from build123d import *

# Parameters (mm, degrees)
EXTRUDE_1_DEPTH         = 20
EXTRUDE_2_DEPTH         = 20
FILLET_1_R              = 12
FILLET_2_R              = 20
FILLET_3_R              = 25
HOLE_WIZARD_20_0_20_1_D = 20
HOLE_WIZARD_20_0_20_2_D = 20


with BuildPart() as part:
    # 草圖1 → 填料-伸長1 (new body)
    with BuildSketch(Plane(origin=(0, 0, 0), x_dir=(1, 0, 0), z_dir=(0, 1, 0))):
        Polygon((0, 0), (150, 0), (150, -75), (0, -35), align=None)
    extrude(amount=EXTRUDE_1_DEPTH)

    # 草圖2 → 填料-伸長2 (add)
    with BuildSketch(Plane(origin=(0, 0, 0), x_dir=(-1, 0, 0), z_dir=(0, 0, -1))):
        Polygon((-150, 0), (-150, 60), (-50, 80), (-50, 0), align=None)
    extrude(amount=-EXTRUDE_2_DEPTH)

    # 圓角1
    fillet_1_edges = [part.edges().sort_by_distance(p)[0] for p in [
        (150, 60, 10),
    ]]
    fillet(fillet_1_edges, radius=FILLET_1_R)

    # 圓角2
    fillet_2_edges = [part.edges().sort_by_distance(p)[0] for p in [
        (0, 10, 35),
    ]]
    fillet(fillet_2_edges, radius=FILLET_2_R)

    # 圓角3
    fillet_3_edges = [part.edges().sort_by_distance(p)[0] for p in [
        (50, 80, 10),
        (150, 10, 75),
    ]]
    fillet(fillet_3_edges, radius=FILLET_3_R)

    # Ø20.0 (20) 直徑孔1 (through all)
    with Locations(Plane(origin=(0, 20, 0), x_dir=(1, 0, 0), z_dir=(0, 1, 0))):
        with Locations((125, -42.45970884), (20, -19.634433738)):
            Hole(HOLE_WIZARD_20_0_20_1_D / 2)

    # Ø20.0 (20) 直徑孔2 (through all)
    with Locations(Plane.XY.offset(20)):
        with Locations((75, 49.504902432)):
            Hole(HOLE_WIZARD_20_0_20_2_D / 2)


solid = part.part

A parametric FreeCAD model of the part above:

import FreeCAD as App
import Part
import Sketcher


def edges_at(feature, points):
    """Names of the edges that pass closest to the given points."""
    edges = feature.Shape.Edges
    near = lambda p: min(range(len(edges)), key=lambda i: edges[i].distToShape(Part.Vertex(*p))[0])
    return sorted({f"Edge{near(p) + 1}" for p in points})

doc = App.newDocument("Part")
body = doc.addObject("PartDesign::Body", "Body")

sketch1 = body.newObject("Sketcher::SketchObject", "Sketch")
sketch1.AttachmentSupport = (doc.getObject("XZ_Plane"), [""])
sketch1.MapMode = "FlatFace"
sketch1.addGeometry(Part.LineSegment(App.Vector(150, 0, 0), App.Vector(0, 0, 0)), False)
sketch1.addGeometry(Part.LineSegment(App.Vector(0, 0, 0), App.Vector(0, 35, 0)), False)
sketch1.addGeometry(Part.LineSegment(App.Vector(0, 35, 0), App.Vector(150, 75, 0)), False)
sketch1.addGeometry(Part.LineSegment(App.Vector(150, 75, 0), App.Vector(150, 0, 0)), False)
sketch1.addConstraint(Sketcher.Constraint("Coincident", 0, 2, 1, 1))
sketch1.addConstraint(Sketcher.Constraint("Coincident", 1, 2, 2, 1))
sketch1.addConstraint(Sketcher.Constraint("Coincident", 2, 2, 3, 1))
sketch1.addConstraint(Sketcher.Constraint("Coincident", 3, 2, 0, 1))
sketch1.addConstraint(Sketcher.Constraint("Horizontal", 0))
sketch1.addConstraint(Sketcher.Constraint("Vertical", 1))
sketch1.addConstraint(Sketcher.Constraint("Vertical", 3))
sketch1.addConstraint(Sketcher.Constraint("Coincident", 0, 2, -1, 1))
sketch1.addConstraint(Sketcher.Constraint("DistanceX", 0, 2, 0, 1, 150.0))
sketch1.addConstraint(Sketcher.Constraint("DistanceY", 1, 1, 1, 2, 35.0))
sketch1.addConstraint(Sketcher.Constraint("DistanceY", 3, 2, 3, 1, 75.0))
pad1 = body.newObject("PartDesign::Pad", "Pad")
pad1.Profile = sketch1
pad1.Length = 20
pad1.Reversed = True

sketch2 = body.newObject("Sketcher::SketchObject", "Sketch001")
sketch2.AttachmentSupport = (doc.getObject("XY_Plane"), [""])
sketch2.MapMode = "FlatFace"
sketch2.addGeometry(Part.LineSegment(App.Vector(150, 60, 0), App.Vector(150, 0, 0)), False)
sketch2.addGeometry(Part.LineSegment(App.Vector(150, 0, 0), App.Vector(50, 0, 0)), False)
sketch2.addGeometry(Part.LineSegment(App.Vector(50, 0, 0), App.Vector(50, 80, 0)), False)
sketch2.addGeometry(Part.LineSegment(App.Vector(50, 80, 0), App.Vector(150, 60, 0)), False)
sketch2.addConstraint(Sketcher.Constraint("Coincident", 0, 2, 1, 1))
sketch2.addConstraint(Sketcher.Constraint("Coincident", 1, 2, 2, 1))
sketch2.addConstraint(Sketcher.Constraint("Coincident", 2, 2, 3, 1))
sketch2.addConstraint(Sketcher.Constraint("Coincident", 3, 2, 0, 1))
sketch2.addConstraint(Sketcher.Constraint("Vertical", 0))
sketch2.addConstraint(Sketcher.Constraint("Horizontal", 1))
sketch2.addConstraint(Sketcher.Constraint("Vertical", 2))
sketch2.addConstraint(Sketcher.Constraint("PointOnObject", 0, 2, -1))
sketch2.addConstraint(Sketcher.Constraint("DistanceX", 1, 2, 1, 1, 100.0))
sketch2.addConstraint(Sketcher.Constraint("DistanceY", 0, 2, 0, 1, 60.0))
sketch2.addConstraint(Sketcher.Constraint("DistanceY", 2, 1, 2, 2, 80.0))
sketch2.addConstraint(Sketcher.Constraint("DistanceX", -1, 1, 0, 2, 150.0))
pad2 = body.newObject("PartDesign::Pad", "Pad001")
pad2.Profile = sketch2
pad2.Length = 20
doc.recompute()

fillet = body.newObject("PartDesign::Fillet", "Fillet")
fillet.Base = (pad2, edges_at(pad2, [(150, 60, 10)]))
fillet.Radius = 12
doc.recompute()

fillet2 = body.newObject("PartDesign::Fillet", "Fillet001")
fillet2.Base = (fillet, edges_at(fillet, [(0, 10, 35)]))
fillet2.Radius = 20
doc.recompute()

fillet3 = body.newObject("PartDesign::Fillet", "Fillet002")
fillet3.Base = (fillet2, edges_at(fillet2, [(50, 80, 10), (150, 10, 75)]))
fillet3.Radius = 25

sketch3 = body.newObject("Sketcher::SketchObject", "Sketch002")
sketch3.AttachmentSupport = (doc.getObject("XZ_Plane"), [""])
sketch3.MapMode = "FlatFace"
sketch3.AttachmentOffset = App.Placement(App.Vector(0, 0, -20), App.Rotation())
sketch3.addGeometry(Part.Circle(App.Vector(125, 42, 0), App.Vector(0, 0, 1), 10), False)
sketch3.addGeometry(Part.Circle(App.Vector(20, 20, 0), App.Vector(0, 0, 1), 10), False)
sketch3.addConstraint(Sketcher.Constraint("Equal", 0, 1))
sketch3.addConstraint(Sketcher.Constraint("Diameter", 0, 20.0))
sketch3.addConstraint(Sketcher.Constraint("DistanceX", -1, 1, 0, 3, 125.0))
sketch3.addConstraint(Sketcher.Constraint("DistanceX", -1, 1, 1, 3, 20.0))
sketch3.addConstraint(Sketcher.Constraint("DistanceY", -1, 1, 0, 3, 42.459709))
sketch3.addConstraint(Sketcher.Constraint("DistanceY", -1, 1, 1, 3, 19.634434))
doc.recompute()
hole = body.newObject("PartDesign::Hole", "Hole")
hole.Profile = sketch3
hole.ThreadType = "None"
hole.Diameter = 20
hole.DepthType = "ThroughAll"
hole.Reversed = True

sketch4 = body.newObject("Sketcher::SketchObject", "Sketch003")
sketch4.AttachmentSupport = (doc.getObject("XY_Plane"), [""])
sketch4.MapMode = "FlatFace"
sketch4.AttachmentOffset = App.Placement(App.Vector(0, 0, 20), App.Rotation())
sketch4.addGeometry(Part.Circle(App.Vector(75, 50, 0), App.Vector(0, 0, 1), 10), False)
sketch4.addConstraint(Sketcher.Constraint("Diameter", 0, 20.0))
sketch4.addConstraint(Sketcher.Constraint("DistanceX", -1, 1, 0, 3, 75.0))
sketch4.addConstraint(Sketcher.Constraint("DistanceY", -1, 1, 0, 3, 49.504902))
doc.recompute()
hole2 = body.newObject("PartDesign::Hole", "Hole001")
hole2.Profile = sketch4
hole2.ThreadType = "None"
hole2.Diameter = 20
hole2.DepthType = "ThroughAll"

doc.recompute()
